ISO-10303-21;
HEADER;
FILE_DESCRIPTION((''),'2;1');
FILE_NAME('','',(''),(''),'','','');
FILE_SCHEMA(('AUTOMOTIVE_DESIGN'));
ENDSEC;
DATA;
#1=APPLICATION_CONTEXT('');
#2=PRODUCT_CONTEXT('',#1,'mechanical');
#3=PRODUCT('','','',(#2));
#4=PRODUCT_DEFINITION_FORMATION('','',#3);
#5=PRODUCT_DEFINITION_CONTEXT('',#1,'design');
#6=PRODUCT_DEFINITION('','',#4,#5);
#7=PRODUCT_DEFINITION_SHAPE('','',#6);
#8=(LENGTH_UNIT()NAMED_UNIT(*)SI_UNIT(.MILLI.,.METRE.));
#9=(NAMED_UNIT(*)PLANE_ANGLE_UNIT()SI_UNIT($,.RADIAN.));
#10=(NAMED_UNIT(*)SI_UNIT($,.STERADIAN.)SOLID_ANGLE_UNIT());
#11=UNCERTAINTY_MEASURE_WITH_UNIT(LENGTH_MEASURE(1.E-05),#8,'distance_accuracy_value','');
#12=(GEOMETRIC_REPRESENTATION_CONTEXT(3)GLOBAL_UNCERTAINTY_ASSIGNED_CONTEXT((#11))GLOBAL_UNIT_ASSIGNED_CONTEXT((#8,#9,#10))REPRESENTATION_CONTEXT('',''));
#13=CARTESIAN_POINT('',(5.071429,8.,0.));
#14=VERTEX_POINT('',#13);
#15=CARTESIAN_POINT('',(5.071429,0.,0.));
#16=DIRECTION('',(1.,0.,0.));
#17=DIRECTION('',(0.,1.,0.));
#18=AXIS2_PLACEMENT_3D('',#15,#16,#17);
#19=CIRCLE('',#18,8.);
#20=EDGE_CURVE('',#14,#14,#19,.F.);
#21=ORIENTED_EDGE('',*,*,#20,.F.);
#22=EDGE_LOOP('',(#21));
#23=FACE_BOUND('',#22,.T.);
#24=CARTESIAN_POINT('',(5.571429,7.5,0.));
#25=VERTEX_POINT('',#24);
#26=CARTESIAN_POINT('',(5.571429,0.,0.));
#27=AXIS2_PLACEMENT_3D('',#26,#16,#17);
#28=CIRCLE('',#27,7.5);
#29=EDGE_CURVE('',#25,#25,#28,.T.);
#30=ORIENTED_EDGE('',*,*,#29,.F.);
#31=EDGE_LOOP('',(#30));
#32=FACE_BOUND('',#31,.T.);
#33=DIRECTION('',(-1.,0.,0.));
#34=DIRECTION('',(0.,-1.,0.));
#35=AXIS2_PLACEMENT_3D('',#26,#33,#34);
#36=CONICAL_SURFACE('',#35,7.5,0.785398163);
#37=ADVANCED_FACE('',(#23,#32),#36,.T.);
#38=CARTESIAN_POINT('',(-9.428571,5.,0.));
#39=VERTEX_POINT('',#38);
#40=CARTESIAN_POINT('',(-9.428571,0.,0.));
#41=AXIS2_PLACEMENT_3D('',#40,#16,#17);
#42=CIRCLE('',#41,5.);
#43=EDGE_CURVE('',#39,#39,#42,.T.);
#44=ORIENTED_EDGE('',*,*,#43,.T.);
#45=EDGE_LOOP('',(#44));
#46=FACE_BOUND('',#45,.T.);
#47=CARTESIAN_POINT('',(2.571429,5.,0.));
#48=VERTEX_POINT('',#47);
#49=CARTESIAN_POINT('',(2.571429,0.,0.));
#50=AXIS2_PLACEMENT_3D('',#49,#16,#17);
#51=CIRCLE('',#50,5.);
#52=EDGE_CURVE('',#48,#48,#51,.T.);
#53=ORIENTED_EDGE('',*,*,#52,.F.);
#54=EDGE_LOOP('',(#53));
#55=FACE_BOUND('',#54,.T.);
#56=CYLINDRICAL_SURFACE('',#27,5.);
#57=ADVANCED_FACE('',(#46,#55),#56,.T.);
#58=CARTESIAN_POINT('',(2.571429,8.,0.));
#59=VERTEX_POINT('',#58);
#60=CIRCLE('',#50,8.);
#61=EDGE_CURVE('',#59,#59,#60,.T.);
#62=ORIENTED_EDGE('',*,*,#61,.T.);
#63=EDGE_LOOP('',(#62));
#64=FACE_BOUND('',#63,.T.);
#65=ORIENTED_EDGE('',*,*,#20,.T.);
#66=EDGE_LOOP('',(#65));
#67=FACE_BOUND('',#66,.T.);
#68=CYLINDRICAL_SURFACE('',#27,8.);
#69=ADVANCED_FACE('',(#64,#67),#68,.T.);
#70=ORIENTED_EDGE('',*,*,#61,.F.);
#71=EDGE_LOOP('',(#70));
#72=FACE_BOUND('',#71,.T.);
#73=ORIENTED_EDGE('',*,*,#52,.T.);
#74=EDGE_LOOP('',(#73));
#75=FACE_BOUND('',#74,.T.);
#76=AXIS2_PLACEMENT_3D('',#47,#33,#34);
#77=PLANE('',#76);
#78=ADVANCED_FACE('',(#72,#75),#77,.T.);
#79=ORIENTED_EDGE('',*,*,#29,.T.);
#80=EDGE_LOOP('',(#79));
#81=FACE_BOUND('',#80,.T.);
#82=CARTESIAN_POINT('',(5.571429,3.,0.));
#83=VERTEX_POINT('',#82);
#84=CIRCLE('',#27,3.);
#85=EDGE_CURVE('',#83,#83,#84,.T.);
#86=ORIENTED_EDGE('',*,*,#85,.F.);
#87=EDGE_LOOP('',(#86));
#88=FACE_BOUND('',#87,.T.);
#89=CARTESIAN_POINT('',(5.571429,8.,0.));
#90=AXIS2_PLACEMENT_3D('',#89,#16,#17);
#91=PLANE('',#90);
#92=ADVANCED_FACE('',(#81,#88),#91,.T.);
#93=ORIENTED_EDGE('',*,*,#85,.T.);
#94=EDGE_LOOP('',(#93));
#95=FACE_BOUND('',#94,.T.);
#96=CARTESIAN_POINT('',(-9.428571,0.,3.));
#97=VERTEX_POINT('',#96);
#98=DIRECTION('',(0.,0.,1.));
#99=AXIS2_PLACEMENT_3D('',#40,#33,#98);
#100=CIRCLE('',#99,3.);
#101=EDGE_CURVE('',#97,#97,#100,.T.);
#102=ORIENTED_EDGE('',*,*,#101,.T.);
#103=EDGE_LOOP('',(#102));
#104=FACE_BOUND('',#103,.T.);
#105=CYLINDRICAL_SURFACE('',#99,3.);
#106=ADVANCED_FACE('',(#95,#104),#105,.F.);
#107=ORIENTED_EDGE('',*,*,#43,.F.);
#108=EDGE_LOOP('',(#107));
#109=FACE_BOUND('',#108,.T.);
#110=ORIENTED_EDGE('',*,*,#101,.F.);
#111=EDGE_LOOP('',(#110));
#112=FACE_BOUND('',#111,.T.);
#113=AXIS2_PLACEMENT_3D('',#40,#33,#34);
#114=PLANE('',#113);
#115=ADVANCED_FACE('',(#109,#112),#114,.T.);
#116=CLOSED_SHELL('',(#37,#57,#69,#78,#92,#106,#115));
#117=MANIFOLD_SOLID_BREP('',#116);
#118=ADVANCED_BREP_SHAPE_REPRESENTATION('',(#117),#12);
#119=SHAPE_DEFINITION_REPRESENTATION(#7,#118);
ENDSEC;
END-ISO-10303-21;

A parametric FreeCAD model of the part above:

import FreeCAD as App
import Part
import Sketcher

V = App.Vector
Q = App.Units.Quantity


def edges_at(feature, points):
    """Names of the edges that pass closest to the given points."""
    edges = feature.Shape.Edges
    near = lambda p: min(range(len(edges)), key=lambda i: edges[i].distToShape(Part.Vertex(*p))[0])
    return sorted({f"Edge{near(p) + 1}" for p in points})

doc = App.newDocument("Part")
body = doc.addObject("PartDesign::Body", "Body")

sketch1 = doc.addObject("Sketcher::SketchObject", "Sketch")
body.addObject(sketch1)
sketch1.AttachmentSupport = (doc.XY_Plane, [""])
sketch1.MapMode = "FlatFace"
sketch1.addGeometry(Part.LineSegment(V(-9.428571, 5, 0), V(-9.428571, 0, 0)), False)
sketch1.addGeometry(Part.LineSegment(V(-9.428571, 0, 0), V(5.571429, 0, 0)), False)
sketch1.addGeometry(Part.LineSegment(V(5.571429, 0, 0), V(5.571429, 8, 0)), False)
sketch1.addGeometry(Part.LineSegment(V(5.571429, 8, 0), V(2.571429, 8, 0)), False)
sketch1.addGeometry(Part.LineSegment(V(2.571429, 8, 0), V(2.571429, 5, 0)), False)
sketch1.addGeometry(Part.LineSegment(V(2.571429, 5, 0), V(-9.428571, 5, 0)), False)
sketch1.addConstraint(Sketcher.Constraint("Coincident", 0, 2, 1, 1))
sketch1.addConstraint(Sketcher.Constraint("Coincident", 1, 2, 2, 1))
sketch1.addConstraint(Sketcher.Constraint("Coincident", 2, 2, 3, 1))
sketch1.addConstraint(Sketcher.Constraint("Coincident", 3, 2, 4, 1))
sketch1.addConstraint(Sketcher.Constraint("Coincident", 4, 2, 5, 1))
sketch1.addConstraint(Sketcher.Constraint("Coincident", 5, 2, 0, 1))
sketch1.addConstraint(Sketcher.Constraint("Vertical", 0))
sketch1.addConstraint(Sketcher.Constraint("Horizontal", 1))
sketch1.addConstraint(Sketcher.Constraint("Vertical", 2))
sketch1.addConstraint(Sketcher.Constraint("Horizontal", 3))
sketch1.addConstraint(Sketcher.Constraint("Vertical", 4))
sketch1.addConstraint(Sketcher.Constraint("Horizontal", 5))
sketch1.addConstraint(Sketcher.Constraint("PointOnObject", 0, 2, -1))
sketch1.addConstraint(Sketcher.Constraint("Equal", 3, 4))
sketch1.addConstraint(Sketcher.Constraint("DistanceX", 1, 1, 1, 2, Q("15 mm")))
sketch1.addConstraint(Sketcher.Constraint("DistanceX", 3, 2, 3, 1, Q("3 mm")))
sketch1.addConstraint(Sketcher.Constraint("DistanceY", 0, 2, 0, 1, Q("5 mm")))
sketch1.addConstraint(Sketcher.Constraint("DistanceX", 0, 2, -1, 1, Q("9.428571 mm")))
revolution = doc.addObject("PartDesign::Revolution", "Revolution")
body.addObject(revolution)
revolution.Profile = sketch1
revolution.ReferenceAxis = (sketch1, ["H_Axis"])
revolution.Angle = 360

sketch2 = doc.addObject("Sketcher::SketchObject", "Sketch001")
body.addObject(sketch2)
sketch2.AttachmentSupport = (doc.YZ_Plane, [""])
sketch2.MapMode = "FlatFace"
sketch2.AttachmentOffset = App.Placement(V(0, 0, -9.428571), App.Rotation())
sketch2.addGeometry(Part.Circle(V(0, 0, 0), V(0, 0, 1), 3), False)
sketch2.addConstraint(Sketcher.Constraint("Coincident", 0, 3, -1, 1))
sketch2.addConstraint(Sketcher.Constraint("Diameter", 0, Q("6 mm")))
doc.recompute()
hole = doc.addObject("PartDesign::Hole", "Hole")
body.addObject(hole)
hole.Profile = sketch2
hole.ThreadType = "None"
hole.Diameter = 6
hole.DepthType = "Dimension"
hole.Depth = 18.197418
hole.DrillPoint = "Angled"
hole.DrillPointAngle = 118
hole.Reversed = True
doc.recompute()

chamfer = doc.addObject("PartDesign::Chamfer", "Chamfer")
body.addObject(chamfer)
chamfer.Base = (hole, edges_at(hole, [(5.571, -8, 0)]))
chamfer.Size = 0.5

doc.recompute()
